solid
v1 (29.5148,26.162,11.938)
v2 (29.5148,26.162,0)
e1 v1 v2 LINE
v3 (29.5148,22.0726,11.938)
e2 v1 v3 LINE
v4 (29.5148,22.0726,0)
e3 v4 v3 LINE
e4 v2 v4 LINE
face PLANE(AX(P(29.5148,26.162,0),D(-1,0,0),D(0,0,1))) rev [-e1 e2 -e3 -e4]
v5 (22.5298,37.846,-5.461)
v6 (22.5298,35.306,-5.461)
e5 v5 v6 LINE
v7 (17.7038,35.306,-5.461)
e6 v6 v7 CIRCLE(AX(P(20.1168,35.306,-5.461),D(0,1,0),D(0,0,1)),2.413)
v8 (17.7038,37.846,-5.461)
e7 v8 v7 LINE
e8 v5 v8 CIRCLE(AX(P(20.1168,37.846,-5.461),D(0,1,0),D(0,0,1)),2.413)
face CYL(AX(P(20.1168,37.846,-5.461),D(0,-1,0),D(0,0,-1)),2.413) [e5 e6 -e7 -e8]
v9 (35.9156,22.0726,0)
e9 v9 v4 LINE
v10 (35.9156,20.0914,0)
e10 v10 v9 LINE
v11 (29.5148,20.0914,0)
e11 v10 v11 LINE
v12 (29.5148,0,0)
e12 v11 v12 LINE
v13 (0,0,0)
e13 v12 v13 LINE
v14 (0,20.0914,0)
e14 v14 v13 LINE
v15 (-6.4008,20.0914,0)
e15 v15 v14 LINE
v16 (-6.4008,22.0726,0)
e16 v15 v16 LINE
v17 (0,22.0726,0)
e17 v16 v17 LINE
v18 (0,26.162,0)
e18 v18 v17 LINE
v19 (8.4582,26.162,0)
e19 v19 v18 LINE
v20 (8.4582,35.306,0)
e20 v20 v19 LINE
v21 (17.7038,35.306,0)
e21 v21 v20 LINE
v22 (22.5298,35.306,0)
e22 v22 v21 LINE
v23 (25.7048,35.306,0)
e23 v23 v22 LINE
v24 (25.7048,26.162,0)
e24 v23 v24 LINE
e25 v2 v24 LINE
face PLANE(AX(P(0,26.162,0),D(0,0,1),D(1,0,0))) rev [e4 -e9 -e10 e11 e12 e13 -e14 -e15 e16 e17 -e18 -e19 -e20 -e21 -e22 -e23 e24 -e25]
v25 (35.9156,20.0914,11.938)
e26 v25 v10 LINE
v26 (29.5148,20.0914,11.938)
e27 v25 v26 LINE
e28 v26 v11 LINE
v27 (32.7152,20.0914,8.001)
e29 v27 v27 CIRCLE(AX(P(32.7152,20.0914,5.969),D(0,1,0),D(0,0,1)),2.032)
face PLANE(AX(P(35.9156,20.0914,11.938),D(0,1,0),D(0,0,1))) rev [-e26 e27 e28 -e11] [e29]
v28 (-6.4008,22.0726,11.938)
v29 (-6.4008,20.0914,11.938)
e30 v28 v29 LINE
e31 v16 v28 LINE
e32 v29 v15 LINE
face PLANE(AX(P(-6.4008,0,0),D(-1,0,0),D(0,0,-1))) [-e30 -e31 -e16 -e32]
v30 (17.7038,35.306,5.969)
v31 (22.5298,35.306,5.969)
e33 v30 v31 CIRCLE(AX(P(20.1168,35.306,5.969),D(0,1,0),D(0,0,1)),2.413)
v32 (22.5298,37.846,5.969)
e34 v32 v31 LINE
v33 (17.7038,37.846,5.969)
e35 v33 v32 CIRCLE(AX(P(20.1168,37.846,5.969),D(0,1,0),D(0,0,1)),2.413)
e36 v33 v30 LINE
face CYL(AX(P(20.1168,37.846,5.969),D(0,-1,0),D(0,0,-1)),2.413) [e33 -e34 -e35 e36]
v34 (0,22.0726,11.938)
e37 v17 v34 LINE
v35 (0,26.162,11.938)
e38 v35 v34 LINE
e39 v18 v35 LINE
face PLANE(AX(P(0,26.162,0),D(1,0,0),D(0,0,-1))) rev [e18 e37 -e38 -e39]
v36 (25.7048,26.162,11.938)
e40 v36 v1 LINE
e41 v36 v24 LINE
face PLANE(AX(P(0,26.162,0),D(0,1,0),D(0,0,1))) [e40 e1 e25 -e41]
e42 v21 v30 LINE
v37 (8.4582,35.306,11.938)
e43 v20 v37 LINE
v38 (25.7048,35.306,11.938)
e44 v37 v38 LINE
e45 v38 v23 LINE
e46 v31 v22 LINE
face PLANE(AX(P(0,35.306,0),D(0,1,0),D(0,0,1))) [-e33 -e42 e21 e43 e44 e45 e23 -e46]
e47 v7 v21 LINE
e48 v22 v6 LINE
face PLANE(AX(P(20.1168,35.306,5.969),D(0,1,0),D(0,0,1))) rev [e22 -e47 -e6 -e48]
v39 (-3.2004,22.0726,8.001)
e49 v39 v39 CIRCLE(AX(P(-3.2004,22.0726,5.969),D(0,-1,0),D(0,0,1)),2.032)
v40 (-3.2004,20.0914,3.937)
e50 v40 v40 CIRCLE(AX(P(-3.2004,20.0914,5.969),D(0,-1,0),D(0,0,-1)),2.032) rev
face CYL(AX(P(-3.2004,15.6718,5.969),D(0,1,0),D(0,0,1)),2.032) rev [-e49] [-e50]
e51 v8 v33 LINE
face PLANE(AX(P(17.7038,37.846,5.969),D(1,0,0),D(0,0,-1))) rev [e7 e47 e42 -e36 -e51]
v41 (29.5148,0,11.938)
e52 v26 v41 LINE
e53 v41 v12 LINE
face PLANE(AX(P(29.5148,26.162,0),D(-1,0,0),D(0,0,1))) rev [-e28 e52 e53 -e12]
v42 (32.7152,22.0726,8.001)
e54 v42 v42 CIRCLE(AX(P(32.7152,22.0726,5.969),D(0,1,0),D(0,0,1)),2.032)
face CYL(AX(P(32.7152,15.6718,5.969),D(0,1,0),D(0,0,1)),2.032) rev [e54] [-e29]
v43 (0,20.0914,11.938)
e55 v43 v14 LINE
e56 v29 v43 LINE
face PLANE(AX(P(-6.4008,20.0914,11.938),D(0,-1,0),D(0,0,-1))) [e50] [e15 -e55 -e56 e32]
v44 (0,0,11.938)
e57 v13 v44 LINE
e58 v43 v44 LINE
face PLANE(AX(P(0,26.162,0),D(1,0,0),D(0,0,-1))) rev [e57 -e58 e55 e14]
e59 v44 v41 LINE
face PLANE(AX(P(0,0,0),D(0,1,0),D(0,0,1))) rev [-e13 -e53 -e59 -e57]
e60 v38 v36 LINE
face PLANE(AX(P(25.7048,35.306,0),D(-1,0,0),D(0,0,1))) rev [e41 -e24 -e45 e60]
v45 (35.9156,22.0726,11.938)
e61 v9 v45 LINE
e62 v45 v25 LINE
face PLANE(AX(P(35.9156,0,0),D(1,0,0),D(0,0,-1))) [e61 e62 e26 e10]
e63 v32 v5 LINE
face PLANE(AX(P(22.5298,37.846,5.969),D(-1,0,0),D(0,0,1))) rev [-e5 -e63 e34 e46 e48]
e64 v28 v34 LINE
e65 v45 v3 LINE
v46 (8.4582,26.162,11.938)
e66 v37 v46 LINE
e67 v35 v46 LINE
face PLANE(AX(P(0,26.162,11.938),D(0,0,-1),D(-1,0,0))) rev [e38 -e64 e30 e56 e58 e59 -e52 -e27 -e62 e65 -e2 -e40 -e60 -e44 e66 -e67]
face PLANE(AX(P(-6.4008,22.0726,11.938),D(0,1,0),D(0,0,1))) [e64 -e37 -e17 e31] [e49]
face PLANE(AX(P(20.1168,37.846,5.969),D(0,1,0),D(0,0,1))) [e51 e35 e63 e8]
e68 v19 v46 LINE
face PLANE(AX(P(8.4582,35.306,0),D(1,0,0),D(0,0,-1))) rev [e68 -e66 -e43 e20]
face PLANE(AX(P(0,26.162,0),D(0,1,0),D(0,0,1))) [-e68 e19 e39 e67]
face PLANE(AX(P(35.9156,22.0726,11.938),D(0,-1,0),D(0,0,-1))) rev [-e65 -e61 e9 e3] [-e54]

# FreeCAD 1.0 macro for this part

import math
import FreeCAD as App
import Part
import Sketcher
from FreeCAD import Vector
Q = App.Units.Quantity

doc = App.newDocument("Part")
body = doc.addObject("PartDesign::Body", "Body")

sketch1 = doc.addObject("Sketcher::SketchObject", "Sketch")
body.addObject(sketch1)
sketch1.AttachmentSupport = (doc.XZ_Plane, [""])
sketch1.MapMode = "FlatFace"
sketch1.addGeometry([
    Part.LineSegment(Vector(0, 0, 0), Vector(0, 12, 0)),
    Part.LineSegment(Vector(0, 12, 0), Vector(30, 12, 0)),
    Part.LineSegment(Vector(30, 12, 0), Vector(30, 0, 0)),
    Part.LineSegment(Vector(30, 0, 0), Vector(0, 0, 0)),
], False)
sketch1.addConstraint([
    Sketcher.Constraint("Coincident", 0, 2, 1, 1),
    Sketcher.Constraint("Coincident", 1, 2, 2, 1),
    Sketcher.Constraint("Coincident", 2, 2, 3, 1),
    Sketcher.Constraint("Coincident", 3, 2, 0, 1),
    Sketcher.Constraint("Vertical", 0),
    Sketcher.Constraint("Horizontal", 1),
    Sketcher.Constraint("Vertical", 2),
    Sketcher.Constraint("Horizontal", 3),
    Sketcher.Constraint("Coincident", 3, 2, -1, 1),
    Sketcher.Constraint("DistanceY", 0, 1, 0, 2, Q("0.47 in")),
    Sketcher.Constraint("DistanceX", 1, 1, 1, 2, Q("1.162 in")),
])
pad1 = doc.addObject("PartDesign::Pad", "Pad")
body.addObject(pad1)
pad1.Profile = sketch1
pad1.Length = Q("1.03 in")
pad1.Reversed = True

sketch2 = doc.addObject("Sketcher::SketchObject", "Sketch001")
body.addObject(sketch2)
sketch2.AttachmentSupport = (doc.YZ_Plane, [""])
sketch2.MapMode = "FlatFace"
sketch2.AttachmentOffset = App.Placement(Vector(0, 0, 1.162 * 25.4), App.Rotation())
sketch2.addGeometry([
    Part.LineSegment(Vector(22.1, 11.9, 0), Vector(20.1, 11.9, 0)),
    Part.LineSegment(Vector(20.1, 11.9, 0), Vector(20.1, 0, 0)),
    Part.LineSegment(Vector(20.1, 0, 0), Vector(22.1, 0, 0)),
    Part.LineSegment(Vector(22.1, 0, 0), Vector(22.1, 11.9, 0)),
], False)
sketch2.addConstraint([
    Sketcher.Constraint("Coincident", 0, 2, 1, 1),
    Sketcher.Constraint("Coincident", 1, 2, 2, 1),
    Sketcher.Constraint("Coincident", 2, 2, 3, 1),
    Sketcher.Constraint("Coincident", 3, 2, 0, 1),
    Sketcher.Constraint("Horizontal", 0),
    Sketcher.Constraint("Vertical", 1),
    Sketcher.Constraint("Horizontal", 2),
    Sketcher.Constraint("Vertical", 3),
    Sketcher.Constraint("PointOnObject", 1, 2, -1),
    Sketcher.Constraint("DistanceY", 1, 2, 1, 1, Q("0.47 in")),
    Sketcher.Constraint("DistanceX", 0, 2, 0, 1, Q("0.078 in")),
    Sketcher.Constraint("DistanceX", -1, 1, 0, 2, Q("0.791 in")),
])
pad2 = doc.addObject("PartDesign::Pad", "Pad001")
body.addObject(pad2)
pad2.Profile = sketch2
pad2.Length = Q("0.252 in")
doc.recompute()

datumplane = doc.addObject("PartDesign::Plane", "DatumPlane")
body.addObject(datumplane)
datumplane.AttachmentSupport = (doc.YZ_Plane, [""])
datumplane.MapMode = "FlatFace"
datumplane.AttachmentOffset = App.Placement(Vector(0, 0, 0.581 * 25.4), App.Rotation())
mirrored = doc.addObject("PartDesign::Mirrored", "Mirrored")
body.addObject(mirrored)
mirrored.Originals = [pad2]
mirrored.MirrorPlane = (datumplane, [""])
body.Tip = mirrored

sketch3 = doc.addObject("Sketcher::SketchObject", "Sketch002")
body.addObject(sketch3)
sketch3.AttachmentSupport = (doc.XZ_Plane, [""])
sketch3.MapMode = "FlatFace"
sketch3.AttachmentOffset = App.Placement(Vector(0, 0, -0.869 * 25.4), App.Rotation())
sketch3.addGeometry(Part.Circle(Vector(32.7, 6, 0), Vector(0, 0, 1), 2), False)
sketch3.addConstraint([
    Sketcher.Constraint("Diameter", 0, Q("0.16 in")),
    Sketcher.Constraint("DistanceX", -1, 1, 0, 3, Q("1.288 in")),
    Sketcher.Constraint("DistanceY", -1, 1, 0, 3, Q("0.235 in")),
])
pocket1 = doc.addObject("PartDesign::Pocket", "Pocket")
body.addObject(pocket1)
pocket1.Profile = sketch3
pocket1.Length = Q("0.252 in")
pocket1.Reversed = True
doc.recompute()

datumplane2 = doc.addObject("PartDesign::Plane", "DatumPlane001")
body.addObject(datumplane2)
datumplane2.AttachmentSupport = (doc.YZ_Plane, [""])
datumplane2.MapMode = "FlatFace"
datumplane2.AttachmentOffset = App.Placement(Vector(0, 0, 0.581 * 25.4), App.Rotation())
mirrored2 = doc.addObject("PartDesign::Mirrored", "Mirrored001")
body.addObject(mirrored2)
mirrored2.Originals = [pocket1]
mirrored2.MirrorPlane = (datumplane2, [""])
body.Tip = mirrored2

sketch4 = doc.addObject("Sketcher::SketchObject", "Sketch003")
body.addObject(sketch4)
sketch4.AttachmentSupport = (doc.XZ_Plane, [""])
sketch4.MapMode = "FlatFace"
sketch4.AttachmentOffset = App.Placement(Vector(0, 0, -1.03 * 25.4), App.Rotation())
sketch4.addGeometry([
    Part.LineSegment(Vector(8, 0, 0), Vector(8, 12, 0)),
    Part.LineSegment(Vector(8, 12, 0), Vector(26, 12, 0)),
    Part.LineSegment(Vector(26, 12, 0), Vector(26, 0, 0)),
    Part.LineSegment(Vector(26, 0, 0), Vector(8, 0, 0)),
], False)
sketch4.addConstraint([
    Sketcher.Constraint("Coincident", 0, 2, 1, 1),
    Sketcher.Constraint("Coincident", 1, 2, 2, 1),
    Sketcher.Constraint("Coincident", 2, 2, 3, 1),
    Sketcher.Constraint("Coincident", 3, 2, 0, 1),
    Sketcher.Constraint("Vertical", 0),
    Sketcher.Constraint("Horizontal", 1),
    Sketcher.Constraint("Vertical", 2),
    Sketcher.Constraint("Horizontal", 3),
    Sketcher.Constraint("PointOnObject", 2, 2, -1),
    Sketcher.Constraint("DistanceY", 0, 1, 0, 2, Q("0.47 in")),
    Sketcher.Constraint("DistanceX", 1, 1, 1, 2, Q("0.679 in")),
    Sketcher.Constraint("DistanceX", -1, 1, 0, 2, Q("0.333 in")),
])
pad3 = doc.addObject("PartDesign::Pad", "Pad002")
body.addObject(pad3)
pad3.Profile = sketch4
pad3.Length = Q("0.36 in")
pad3.Reversed = True

sketch5 = doc.addObject("Sketcher::SketchObject", "Sketch004")
body.addObject(sketch5)
sketch5.AttachmentSupport = (doc.XZ_Plane, [""])
sketch5.MapMode = "FlatFace"
sketch5.AttachmentOffset = App.Placement(Vector(0, 0, -1.39 * 25.4), App.Rotation())
sketch5.addGeometry([
    Part.LineSegment(Vector(17.7, -5.5, 0), Vector(17.7, 6, 0)),
    Part.ArcOfCircle(Part.Circle(Vector(20.1, 6, 0), Vector(0, 0, 1), 2.4), math.radians(0), math.radians(180)),
    Part.LineSegment(Vector(22.5, 6, 0), Vector(22.5, -5.5, 0)),
    Part.ArcOfCircle(Part.Circle(Vector(20.1, -5.5, 0), Vector(0, 0, 1), 2.4), math.radians(180), math.radians(360)),
], False)
sketch5.addConstraint([
    Sketcher.Constraint("Tangent", 0, 2, 1, 2),
    Sketcher.Constraint("Tangent", 1, 1, 2, 1),
    Sketcher.Constraint("Tangent", 2, 2, 3, 2),
    Sketcher.Constraint("Tangent", 3, 1, 0, 1),
    Sketcher.Constraint("Vertical", 0),
    Sketcher.Constraint("Vertical", 2),
    Sketcher.Constraint("Radius", 1, Q("0.095 in")),
    Sketcher.Constraint("DistanceY", 0, 1, 0, 2, Q("0.45 in")),
    Sketcher.Constraint("DistanceX", -1, 1, 1, 3, Q("0.792 in")),
    Sketcher.Constraint("DistanceY", -1, 1, 1, 3, Q("0.235 in")),
])
pad4 = doc.addObject("PartDesign::Pad", "Pad003")
body.addObject(pad4)
pad4.Profile = sketch5
pad4.Length = Q("0.1 in")
pad4.Reversed = True

doc.recompute()
